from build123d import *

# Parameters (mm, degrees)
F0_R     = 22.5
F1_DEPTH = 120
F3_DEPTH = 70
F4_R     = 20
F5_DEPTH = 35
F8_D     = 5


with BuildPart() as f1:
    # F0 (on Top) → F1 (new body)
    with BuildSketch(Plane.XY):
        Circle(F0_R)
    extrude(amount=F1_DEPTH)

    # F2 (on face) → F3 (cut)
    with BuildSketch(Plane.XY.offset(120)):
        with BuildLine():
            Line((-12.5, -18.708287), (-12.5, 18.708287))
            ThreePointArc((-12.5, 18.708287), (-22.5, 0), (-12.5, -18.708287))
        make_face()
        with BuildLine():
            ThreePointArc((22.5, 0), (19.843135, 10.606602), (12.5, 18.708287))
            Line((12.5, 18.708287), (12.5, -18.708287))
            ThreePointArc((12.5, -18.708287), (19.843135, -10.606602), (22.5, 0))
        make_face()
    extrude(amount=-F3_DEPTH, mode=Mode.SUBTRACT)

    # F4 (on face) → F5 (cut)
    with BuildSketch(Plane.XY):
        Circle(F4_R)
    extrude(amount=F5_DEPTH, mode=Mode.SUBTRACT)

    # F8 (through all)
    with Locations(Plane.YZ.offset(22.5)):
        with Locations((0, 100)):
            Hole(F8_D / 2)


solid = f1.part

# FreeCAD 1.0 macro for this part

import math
import FreeCAD as App
import Part
import Sketcher

V = App.Vector
Q = App.Units.Quantity

doc = App.newDocument("Part")
body = doc.addObject("PartDesign::Body", "Body")

# Sketch on XY plane
sketch1 = doc.addObject("Sketcher::SketchObject", "Sketch")
body.addObject(sketch1)
sketch1.AttachmentSupport = (doc.XY_Plane, [""])
sketch1.MapMode = "FlatFace"
sketch1.addGeometry(Part.Circle(V(0, 0, 0), V(0, 0, 1), 22.5), False)
sketch1.addConstraint([
    Sketcher.Constraint("Coincident", 0, 3, -1, 1),
    Sketcher.Constraint("Diameter", 0, Q("45 mm")),
])
pad1 = doc.addObject("PartDesign::Pad", "Pad")
body.addObject(pad1)
pad1.Profile = sketch1
pad1.Length = 120

# Sketch on XY plane
sketch2 = doc.addObject("Sketcher::SketchObject", "Sketch001")
body.addObject(sketch2)
sketch2.AttachmentSupport = (doc.XY_Plane, [""])
sketch2.MapMode = "FlatFace"
sketch2.AttachmentOffset = App.Placement(V(0, 0, 120), App.Rotation())
sketch2.addGeometry([
    Part.LineSegment(V(-12.5, -18.708287, 0), V(-12.5, 18.708287, 0)),  # 0
    Part.ArcOfCircle(Part.Circle(V(0, 0, 0), V(0, 0, 1), 22.5), math.radians(123.748989), math.radians(236.251011)),  # 1
    Part.ArcOfCircle(Part.Circle(V(0.000002, 0.000001, 0), V(0, 0, 1), 22.499998), math.radians(-0.000003), math.radians(56.251014)),  # 2
    Part.LineSegment(V(12.5, 18.708287, 0), V(12.5, -18.708287, 0)),  # 3
    Part.ArcOfCircle(Part.Circle(V(0.000002, -0.000001, 0), V(0, 0, 1), 22.499998), math.radians(-56.251014), math.radians(0.000003)),  # 4
], False)
sketch2.addConstraint([
    Sketcher.Constraint("Coincident", 0, 1, 1, 2),
    Sketcher.Constraint("Coincident", 1, 1, 0, 2),
    Sketcher.Constraint("Coincident", 2, 2, 3, 1),
    Sketcher.Constraint("Coincident", 3, 2, 4, 1),
    Sketcher.Constraint("Tangent", 4, 2, 2, 1),
    Sketcher.Constraint("Vertical", 0),
    Sketcher.Constraint("Vertical", 3),
    Sketcher.Constraint("Coincident", 1, 3, -1, 1),
    Sketcher.Constraint("Coincident", 2, 3, -1, 1),
    Sketcher.Constraint("Equal", 1, 2),
    Sketcher.Constraint("Equal", 2, 4),
    Sketcher.Constraint("PointOnObject", 4, 2, -1),
    Sketcher.Constraint("Horizontal", 1, 1, 2, 2),
    Sketcher.Constraint("Radius", 1, Q("22.5 mm")),
    Sketcher.Constraint("DistanceX", 1, 1, 2, 2, Q("25 mm")),
])
pocket1 = doc.addObject("PartDesign::Pocket", "Pocket")
body.addObject(pocket1)
pocket1.Profile = sketch2
pocket1.Length = 70

# Sketch on XY plane
sketch3 = doc.addObject("Sketcher::SketchObject", "Sketch002")
body.addObject(sketch3)
sketch3.AttachmentSupport = (doc.XY_Plane, [""])
sketch3.MapMode = "FlatFace"
sketch3.addGeometry(Part.Circle(V(0, 0, 0), V(0, 0, 1), 20), False)
sketch3.addConstraint([
    Sketcher.Constraint("Coincident", 0, 3, -1, 1),
    Sketcher.Constraint("Diameter", 0, Q("40 mm")),
])
pocket2 = doc.addObject("PartDesign::Pocket", "Pocket001")
body.addObject(pocket2)
pocket2.Profile = sketch3
pocket2.Length = 35
pocket2.Reversed = True

# Sketch on YZ plane
sketch4 = doc.addObject("Sketcher::SketchObject", "Sketch003")
body.addObject(sketch4)
sketch4.AttachmentSupport = (doc.YZ_Plane, [""])
sketch4.MapMode = "FlatFace"
sketch4.AttachmentOffset = App.Placement(V(0, 0, 22.5), App.Rotation())
sketch4.addGeometry(Part.Circle(V(0, 100, 0), V(0, 0, 1), 2.5), False)
sketch4.addConstraint([
    Sketcher.Constraint("PointOnObject", 0, 3, -2),
    Sketcher.Constraint("Diameter", 0, Q("5 mm")),
    Sketcher.Constraint("DistanceY", -1, 1, 0, 3, Q("100 mm")),
])
doc.recompute()
hole = doc.addObject("PartDesign::Hole", "Hole")
body.addObject(hole)
hole.Profile = sketch4
hole.ThreadType = "None"
hole.Diameter = 5
hole.DepthType = "ThroughAll"

doc.recompute()
